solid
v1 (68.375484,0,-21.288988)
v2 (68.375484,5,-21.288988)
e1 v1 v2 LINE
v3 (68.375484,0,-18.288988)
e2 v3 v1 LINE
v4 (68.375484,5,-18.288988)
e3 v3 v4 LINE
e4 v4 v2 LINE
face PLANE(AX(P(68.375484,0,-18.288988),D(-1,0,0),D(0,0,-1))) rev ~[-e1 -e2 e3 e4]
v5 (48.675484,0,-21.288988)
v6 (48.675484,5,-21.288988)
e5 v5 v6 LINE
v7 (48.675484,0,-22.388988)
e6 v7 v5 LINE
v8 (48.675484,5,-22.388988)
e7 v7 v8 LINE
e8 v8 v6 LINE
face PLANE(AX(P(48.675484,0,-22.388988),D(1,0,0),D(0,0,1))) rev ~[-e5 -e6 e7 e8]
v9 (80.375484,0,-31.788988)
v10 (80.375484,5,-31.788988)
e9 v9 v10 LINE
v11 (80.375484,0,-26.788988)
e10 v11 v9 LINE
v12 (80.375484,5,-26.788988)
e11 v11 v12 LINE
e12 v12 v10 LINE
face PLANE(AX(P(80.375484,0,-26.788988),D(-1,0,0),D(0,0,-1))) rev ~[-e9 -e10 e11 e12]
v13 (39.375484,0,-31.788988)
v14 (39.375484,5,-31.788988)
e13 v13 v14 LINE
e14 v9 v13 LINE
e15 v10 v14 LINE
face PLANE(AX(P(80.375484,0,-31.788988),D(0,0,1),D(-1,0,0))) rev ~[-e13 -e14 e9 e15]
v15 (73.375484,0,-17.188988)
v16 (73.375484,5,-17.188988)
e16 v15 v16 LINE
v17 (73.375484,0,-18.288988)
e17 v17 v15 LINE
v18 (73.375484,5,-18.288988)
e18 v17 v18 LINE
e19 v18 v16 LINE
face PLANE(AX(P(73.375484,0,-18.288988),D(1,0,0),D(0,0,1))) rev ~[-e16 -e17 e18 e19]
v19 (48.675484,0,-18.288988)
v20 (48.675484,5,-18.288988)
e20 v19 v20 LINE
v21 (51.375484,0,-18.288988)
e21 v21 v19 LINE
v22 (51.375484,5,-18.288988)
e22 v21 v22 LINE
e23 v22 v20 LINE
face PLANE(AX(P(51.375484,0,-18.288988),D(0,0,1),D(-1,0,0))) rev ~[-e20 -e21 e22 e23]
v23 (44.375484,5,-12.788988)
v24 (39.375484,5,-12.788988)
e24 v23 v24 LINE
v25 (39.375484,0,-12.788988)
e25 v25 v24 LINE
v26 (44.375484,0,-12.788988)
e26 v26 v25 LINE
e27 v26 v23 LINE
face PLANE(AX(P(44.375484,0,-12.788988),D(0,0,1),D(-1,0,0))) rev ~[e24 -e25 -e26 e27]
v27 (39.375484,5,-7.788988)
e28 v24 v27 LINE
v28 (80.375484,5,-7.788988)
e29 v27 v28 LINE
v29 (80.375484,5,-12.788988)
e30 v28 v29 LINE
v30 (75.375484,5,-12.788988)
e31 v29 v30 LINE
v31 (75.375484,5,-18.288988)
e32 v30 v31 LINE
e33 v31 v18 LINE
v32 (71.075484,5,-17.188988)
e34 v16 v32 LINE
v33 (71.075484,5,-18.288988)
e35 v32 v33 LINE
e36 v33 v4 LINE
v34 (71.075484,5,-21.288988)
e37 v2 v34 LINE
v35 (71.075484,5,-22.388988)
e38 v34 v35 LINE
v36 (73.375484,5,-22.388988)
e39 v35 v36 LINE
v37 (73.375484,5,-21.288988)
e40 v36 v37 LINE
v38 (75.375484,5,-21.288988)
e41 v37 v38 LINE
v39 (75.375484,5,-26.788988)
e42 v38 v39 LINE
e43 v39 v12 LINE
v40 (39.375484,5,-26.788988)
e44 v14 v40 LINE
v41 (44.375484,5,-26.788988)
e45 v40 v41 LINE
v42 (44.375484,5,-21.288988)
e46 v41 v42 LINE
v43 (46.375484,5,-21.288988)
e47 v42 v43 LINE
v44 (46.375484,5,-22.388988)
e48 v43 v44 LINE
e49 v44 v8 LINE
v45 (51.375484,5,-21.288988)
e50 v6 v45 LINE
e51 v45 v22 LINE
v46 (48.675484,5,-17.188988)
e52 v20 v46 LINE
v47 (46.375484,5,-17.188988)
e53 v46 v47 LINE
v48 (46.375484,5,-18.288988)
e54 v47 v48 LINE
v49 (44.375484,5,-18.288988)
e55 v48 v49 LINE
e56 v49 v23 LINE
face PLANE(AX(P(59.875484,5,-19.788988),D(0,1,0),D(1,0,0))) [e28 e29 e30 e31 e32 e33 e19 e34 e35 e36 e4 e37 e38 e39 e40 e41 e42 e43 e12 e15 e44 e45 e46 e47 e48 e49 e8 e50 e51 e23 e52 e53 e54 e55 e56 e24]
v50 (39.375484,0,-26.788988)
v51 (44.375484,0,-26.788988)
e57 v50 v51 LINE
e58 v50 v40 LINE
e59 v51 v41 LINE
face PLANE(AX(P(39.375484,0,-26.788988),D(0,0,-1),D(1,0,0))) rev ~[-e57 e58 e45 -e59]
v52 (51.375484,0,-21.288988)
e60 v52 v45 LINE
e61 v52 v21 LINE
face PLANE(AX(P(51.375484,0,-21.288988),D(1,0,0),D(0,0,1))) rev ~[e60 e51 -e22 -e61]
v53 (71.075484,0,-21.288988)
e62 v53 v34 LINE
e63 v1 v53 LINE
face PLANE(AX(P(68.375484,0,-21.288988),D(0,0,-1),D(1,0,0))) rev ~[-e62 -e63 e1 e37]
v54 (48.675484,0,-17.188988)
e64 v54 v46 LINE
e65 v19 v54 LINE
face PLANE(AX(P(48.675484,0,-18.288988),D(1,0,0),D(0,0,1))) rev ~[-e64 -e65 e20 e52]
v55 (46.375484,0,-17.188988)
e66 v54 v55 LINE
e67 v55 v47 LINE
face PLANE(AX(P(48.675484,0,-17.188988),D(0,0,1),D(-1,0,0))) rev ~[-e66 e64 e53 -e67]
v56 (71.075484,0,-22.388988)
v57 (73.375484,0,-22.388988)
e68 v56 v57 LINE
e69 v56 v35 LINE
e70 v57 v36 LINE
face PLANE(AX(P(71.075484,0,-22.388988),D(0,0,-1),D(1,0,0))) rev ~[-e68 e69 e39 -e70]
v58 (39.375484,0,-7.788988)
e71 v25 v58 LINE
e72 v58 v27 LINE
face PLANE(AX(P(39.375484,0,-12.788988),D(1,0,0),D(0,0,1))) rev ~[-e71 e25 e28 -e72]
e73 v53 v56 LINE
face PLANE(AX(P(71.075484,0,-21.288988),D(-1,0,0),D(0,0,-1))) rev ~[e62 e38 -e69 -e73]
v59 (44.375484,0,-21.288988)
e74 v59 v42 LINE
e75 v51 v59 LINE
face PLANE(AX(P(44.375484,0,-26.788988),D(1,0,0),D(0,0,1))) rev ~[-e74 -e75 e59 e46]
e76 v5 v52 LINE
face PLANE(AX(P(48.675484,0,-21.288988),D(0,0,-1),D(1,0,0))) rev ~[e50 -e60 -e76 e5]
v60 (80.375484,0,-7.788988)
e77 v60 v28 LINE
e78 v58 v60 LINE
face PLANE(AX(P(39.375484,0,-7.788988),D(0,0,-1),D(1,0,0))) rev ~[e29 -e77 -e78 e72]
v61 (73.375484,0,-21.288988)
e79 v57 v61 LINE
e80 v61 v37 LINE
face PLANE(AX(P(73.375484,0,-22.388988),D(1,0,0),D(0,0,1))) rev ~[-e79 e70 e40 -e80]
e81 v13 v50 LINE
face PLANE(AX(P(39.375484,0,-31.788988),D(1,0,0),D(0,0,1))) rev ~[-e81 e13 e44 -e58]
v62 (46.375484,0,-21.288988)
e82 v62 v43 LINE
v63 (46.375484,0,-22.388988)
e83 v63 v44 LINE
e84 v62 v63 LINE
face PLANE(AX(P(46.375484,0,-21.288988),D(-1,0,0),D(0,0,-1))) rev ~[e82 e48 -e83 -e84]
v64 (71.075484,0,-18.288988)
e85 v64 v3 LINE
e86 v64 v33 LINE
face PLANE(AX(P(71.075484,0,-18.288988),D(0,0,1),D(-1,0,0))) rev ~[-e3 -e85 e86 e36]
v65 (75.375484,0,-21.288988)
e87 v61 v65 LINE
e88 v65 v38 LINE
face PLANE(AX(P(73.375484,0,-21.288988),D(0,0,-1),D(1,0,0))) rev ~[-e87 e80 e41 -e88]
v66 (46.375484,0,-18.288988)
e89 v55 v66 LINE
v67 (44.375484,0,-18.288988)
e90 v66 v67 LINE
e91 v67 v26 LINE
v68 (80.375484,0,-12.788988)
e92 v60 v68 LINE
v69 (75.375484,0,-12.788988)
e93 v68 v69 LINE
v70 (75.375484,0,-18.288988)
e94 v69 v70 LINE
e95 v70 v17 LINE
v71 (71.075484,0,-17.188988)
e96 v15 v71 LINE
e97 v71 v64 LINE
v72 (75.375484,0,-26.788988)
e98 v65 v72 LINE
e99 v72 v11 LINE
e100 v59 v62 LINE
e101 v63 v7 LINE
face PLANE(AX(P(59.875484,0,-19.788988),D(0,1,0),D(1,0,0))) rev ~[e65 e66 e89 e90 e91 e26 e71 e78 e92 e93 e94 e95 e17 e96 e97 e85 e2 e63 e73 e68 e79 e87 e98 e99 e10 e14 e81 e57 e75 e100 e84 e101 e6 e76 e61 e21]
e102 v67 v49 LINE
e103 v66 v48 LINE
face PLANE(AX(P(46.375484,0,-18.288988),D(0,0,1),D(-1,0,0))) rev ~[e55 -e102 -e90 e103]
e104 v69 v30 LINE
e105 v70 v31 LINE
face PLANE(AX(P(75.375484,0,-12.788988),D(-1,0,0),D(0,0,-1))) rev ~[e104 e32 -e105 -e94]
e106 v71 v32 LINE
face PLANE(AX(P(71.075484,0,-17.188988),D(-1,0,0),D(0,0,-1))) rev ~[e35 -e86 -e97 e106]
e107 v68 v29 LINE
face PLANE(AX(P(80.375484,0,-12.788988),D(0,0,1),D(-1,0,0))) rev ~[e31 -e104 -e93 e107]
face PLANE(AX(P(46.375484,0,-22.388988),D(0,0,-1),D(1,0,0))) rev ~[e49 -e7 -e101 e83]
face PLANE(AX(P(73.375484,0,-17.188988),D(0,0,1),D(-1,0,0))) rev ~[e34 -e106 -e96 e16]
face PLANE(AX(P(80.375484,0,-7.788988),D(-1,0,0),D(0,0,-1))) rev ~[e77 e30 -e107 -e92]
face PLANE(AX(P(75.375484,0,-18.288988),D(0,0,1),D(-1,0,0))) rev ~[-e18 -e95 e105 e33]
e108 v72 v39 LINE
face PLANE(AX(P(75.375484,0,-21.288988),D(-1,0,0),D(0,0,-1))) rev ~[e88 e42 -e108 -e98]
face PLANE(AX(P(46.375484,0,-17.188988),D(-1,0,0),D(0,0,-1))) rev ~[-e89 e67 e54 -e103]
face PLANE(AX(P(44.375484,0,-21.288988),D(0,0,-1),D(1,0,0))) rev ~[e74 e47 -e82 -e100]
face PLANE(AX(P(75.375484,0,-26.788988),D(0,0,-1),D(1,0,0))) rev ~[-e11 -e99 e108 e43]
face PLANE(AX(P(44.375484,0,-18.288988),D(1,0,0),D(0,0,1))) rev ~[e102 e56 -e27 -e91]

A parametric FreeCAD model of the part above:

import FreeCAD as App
import Part
import Sketcher
from FreeCAD import Vector


def add_polygon(sketch, points):
    """Adds a closed chain of lines whose ends are joined by coincident constraints."""
    first, n = sketch.GeometryCount, len(points)
    for a, b in zip(points, points[1:] + points[:1]):
        sketch.addGeometry(Part.LineSegment(App.Vector(*a, 0), App.Vector(*b, 0)), False)
    for i in range(n):
        sketch.addConstraint(Sketcher.Constraint("Coincident", first + i, 2, first + (i + 1) % n, 1))

doc = App.newDocument("Part")
body = doc.addObject("PartDesign::Body", "Body")

# Sketch on XZ plane
sketch1 = body.newObject("Sketcher::SketchObject", "Sketch")
sketch1.AttachmentSupport = (doc.getObject("XZ_Plane"), [""])
sketch1.MapMode = "FlatFace"
add_polygon(sketch1, [(80.375484, -7.788988), (80.375484, -12.788988), (75.375484, -12.788988), (75.375484, -18.288988), (73.375484, -18.288988), (73.375484, -17.188988), (71.075484, -17.188988), (71.075484, -18.288988), (68.375484, -18.288988), (68.375484, -21.288988), (71.075484, -21.288988), (71.075484, -22.388988), (73.375484, -22.388988), (73.375484, -21.288988), (75.375484, -21.288988), (75.375484, -26.788988), (80.375484, -26.788988), (80.375484, -31.788988), (39.375484, -31.788988), (39.375484, -26.788988), (44.375484, -26.788988), (44.375484, -21.288988), (46.375484, -21.288988), (46.375484, -22.388988), (48.675484, -22.388988), (48.675484, -21.288988), (51.375484, -21.288988), (51.375484, -18.288988), (48.675484, -18.288988), (48.675484, -17.188988), (46.375484, -17.188988), (46.375484, -18.288988), (44.375484, -18.288988), (44.375484, -12.788988), (39.375484, -12.788988), (39.375484, -7.788988)])  # lines 0-35
sketch1.addConstraint([
    Sketcher.Constraint("Vertical", 0),
    Sketcher.Constraint("Horizontal", 1),
    Sketcher.Constraint("Vertical", 2),
    Sketcher.Constraint("Horizontal", 3),
    Sketcher.Constraint("Vertical", 4),
    Sketcher.Constraint("Horizontal", 5),
    Sketcher.Constraint("Vertical", 6),
    Sketcher.Constraint("Horizontal", 7),
    Sketcher.Constraint("Vertical", 8),
    Sketcher.Constraint("Horizontal", 9),
    Sketcher.Constraint("Vertical", 10),
    Sketcher.Constraint("Horizontal", 11),
    Sketcher.Constraint("Vertical", 12),
    Sketcher.Constraint("Horizontal", 13),
    Sketcher.Constraint("Vertical", 14),
    Sketcher.Constraint("Horizontal", 15),
    Sketcher.Constraint("Vertical", 16),
    Sketcher.Constraint("Horizontal", 17),
    Sketcher.Constraint("Vertical", 18),
    Sketcher.Constraint("Horizontal", 19),
    Sketcher.Constraint("Vertical", 20),
    Sketcher.Constraint("Horizontal", 21),
    Sketcher.Constraint("Vertical", 22),
    Sketcher.Constraint("Horizontal", 23),
    Sketcher.Constraint("Vertical", 24),
    Sketcher.Constraint("Horizontal", 25),
    Sketcher.Constraint("Vertical", 26),
    Sketcher.Constraint("Horizontal", 27),
    Sketcher.Constraint("Vertical", 28),
    Sketcher.Constraint("Horizontal", 29),
    Sketcher.Constraint("Vertical", 30),
    Sketcher.Constraint("Horizontal", 31),
    Sketcher.Constraint("Vertical", 32),
    Sketcher.Constraint("Horizontal", 33),
    Sketcher.Constraint("Vertical", 34),
    Sketcher.Constraint("Horizontal", 35),
    Sketcher.Constraint("Horizontal", 3, 2, 6, 2),
    Sketcher.Constraint("Horizontal", 9, 2, 12, 2),
    Sketcher.Constraint("Horizontal", 15, 2, 18, 2),
    Sketcher.Constraint("Horizontal", 13, 2, 20, 2),
    Sketcher.Constraint("Horizontal", 11, 2, 22, 2),
    Sketcher.Constraint("Horizontal", 21, 2, 24, 2),
    Sketcher.Constraint("Horizontal", 7, 2, 26, 2),
    Sketcher.Constraint("Horizontal", 5, 2, 28, 2),
    Sketcher.Constraint("Horizontal", 27, 2, 30, 2),
    Sketcher.Constraint("Horizontal", 1, 2, 32, 2),
    Sketcher.Constraint("Vertical", 6, 2, 9, 2),
    Sketcher.Constraint("Vertical", 4, 2, 11, 2),
    Sketcher.Constraint("Vertical", 2, 2, 13, 2),
    Sketcher.Constraint("Vertical", 0, 2, 15, 2),
    Sketcher.Constraint("Vertical", 24, 2, 27, 2),
    Sketcher.Constraint("Vertical", 22, 2, 29, 2),
    Sketcher.Constraint("Vertical", 20, 2, 31, 2),
    Sketcher.Constraint("Vertical", 18, 2, 33, 2),
    Sketcher.Constraint("Equal", 15, 19),
    Sketcher.Constraint("Equal", 13, 21),
    Sketcher.Constraint("Equal", 11, 23),
    Sketcher.Constraint("Equal", 9, 25),
    Sketcher.Constraint("Equal", 33, 0),
    Sketcher.Constraint("Equal", 6, 10),
    Sketcher.Constraint("Equal", 2, 14),
    Sketcher.Constraint("Equal", 0, 16),
    Sketcher.Constraint("DistanceX", 1, 2, 1, 1, 5.0),
    Sketcher.Constraint("DistanceX", 3, 2, 3, 1, 2.0),
    Sketcher.Constraint("DistanceX", 17, 2, 17, 1, 41.0),
    Sketcher.Constraint("DistanceY", 8, 2, 8, 1, 3.0),
    Sketcher.Constraint("DistanceX", 5, 2, 5, 1, 2.3),
    Sketcher.Constraint("DistanceX", 7, 2, 7, 1, 2.7),
    Sketcher.Constraint("DistanceY", 2, 2, 2, 1, 5.5),
    Sketcher.Constraint("DistanceY", 4, 1, 4, 2, 1.1),
    Sketcher.Constraint("DistanceY", 0, 2, -1, 1, 12.788988),
    Sketcher.Constraint("DistanceX", -1, 1, 0, 2, 80.375484),
])
pad1 = body.newObject("PartDesign::Pad", "Pad")
pad1.Profile = sketch1
pad1.Length = 5
pad1.Reversed = True

doc.recompute()
